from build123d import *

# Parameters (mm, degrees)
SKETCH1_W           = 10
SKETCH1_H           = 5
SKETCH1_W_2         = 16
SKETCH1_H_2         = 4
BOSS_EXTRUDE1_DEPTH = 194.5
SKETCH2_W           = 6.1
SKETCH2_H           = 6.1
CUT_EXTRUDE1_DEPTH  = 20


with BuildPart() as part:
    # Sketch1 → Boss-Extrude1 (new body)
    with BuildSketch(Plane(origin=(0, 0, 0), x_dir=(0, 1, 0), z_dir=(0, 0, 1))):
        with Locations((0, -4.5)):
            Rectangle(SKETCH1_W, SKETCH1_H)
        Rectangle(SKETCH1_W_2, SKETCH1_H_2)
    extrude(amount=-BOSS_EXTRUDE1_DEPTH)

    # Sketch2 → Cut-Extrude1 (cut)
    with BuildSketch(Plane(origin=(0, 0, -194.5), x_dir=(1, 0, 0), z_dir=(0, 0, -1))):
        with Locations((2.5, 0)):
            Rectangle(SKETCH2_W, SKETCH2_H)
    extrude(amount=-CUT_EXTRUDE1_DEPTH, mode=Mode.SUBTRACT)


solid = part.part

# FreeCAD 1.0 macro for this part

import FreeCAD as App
import Part
import Sketcher
from FreeCAD import Vector

doc = App.newDocument("Part")
params = doc.addObject("Spreadsheet::Sheet", "Params")
for row, (alias, value) in enumerate([
    ("sketch1_width", "5 mm"),
    ("sketch1_width2", "4 mm"),
    ("sketch1_height", "10 mm"),
    ("sketch1_height2", "3 mm"),
    ("pad1_length", "194.5 mm"),
    ("sketch2_width", "6.1 mm"),
    ("pocket1_length", "20 mm"),
], start=1):
    params.set(f"A{row}", alias)
    params.set(f"B{row}", "=" + value)
    params.setAlias(f"B{row}", alias)

body = doc.addObject("PartDesign::Body", "Body")

# Sketch on XY plane
sketch1 = body.newObject("Sketcher::SketchObject", "Sketch")
sketch1.AttachmentSupport = (doc.getObject("XY_Plane"), [""])
sketch1.MapMode = "FlatFace"
sketch1.addGeometry(Part.LineSegment(Vector(2, -5, 0), Vector(7, -5, 0)), False)
sketch1.addGeometry(Part.LineSegment(Vector(7, -5, 0), Vector(7, 5, 0)), False)
sketch1.addGeometry(Part.LineSegment(Vector(7, 5, 0), Vector(2, 5, 0)), False)
sketch1.addGeometry(Part.LineSegment(Vector(2, 5, 0), Vector(2, 8, 0)), False)
sketch1.addGeometry(Part.LineSegment(Vector(2, 8, 0), Vector(-2, 8, 0)), False)
sketch1.addGeometry(Part.LineSegment(Vector(-2, 8, 0), Vector(-2, -8, 0)), False)
sketch1.addGeometry(Part.LineSegment(Vector(-2, -8, 0), Vector(2, -8, 0)), False)
sketch1.addGeometry(Part.LineSegment(Vector(2, -8, 0), Vector(2, -5, 0)), False)
sketch1.addConstraint(Sketcher.Constraint("Coincident", 0, 2, 1, 1))
sketch1.addConstraint(Sketcher.Constraint("Coincident", 1, 2, 2, 1))
sketch1.addConstraint(Sketcher.Constraint("Coincident", 2, 2, 3, 1))
sketch1.addConstraint(Sketcher.Constraint("Coincident", 3, 2, 4, 1))
sketch1.addConstraint(Sketcher.Constraint("Coincident", 4, 2, 5, 1))
sketch1.addConstraint(Sketcher.Constraint("Coincident", 5, 2, 6, 1))
sketch1.addConstraint(Sketcher.Constraint("Coincident", 6, 2, 7, 1))
sketch1.addConstraint(Sketcher.Constraint("Coincident", 7, 2, 0, 1))
sketch1.addConstraint(Sketcher.Constraint("Horizontal", 0))
sketch1.addConstraint(Sketcher.Constraint("Vertical", 1))
sketch1.addConstraint(Sketcher.Constraint("Horizontal", 2))
sketch1.addConstraint(Sketcher.Constraint("Vertical", 3))
sketch1.addConstraint(Sketcher.Constraint("Horizontal", 4))
sketch1.addConstraint(Sketcher.Constraint("Vertical", 5))
sketch1.addConstraint(Sketcher.Constraint("Horizontal", 6))
sketch1.addConstraint(Sketcher.Constraint("Vertical", 7))
sketch1.addConstraint(Sketcher.Constraint("Symmetric", 3, 2, 5, 2, -1, 1))
sketch1.addConstraint(Sketcher.Constraint("Symmetric", 2, 2, 7, 2, -1))
sketch1.addConstraint(Sketcher.Constraint("DistanceX", 0, 1, 0, 2, 5.0))
sketch1.addConstraint(Sketcher.Constraint("DistanceX", 4, 2, 4, 1, 4.0))
sketch1.addConstraint(Sketcher.Constraint("DistanceY", 1, 1, 1, 2, 10.0))
sketch1.addConstraint(Sketcher.Constraint("DistanceY", 3, 1, 3, 2, 3.0))
sketch1.setExpression("Constraints[18]", "Params.sketch1_width")
sketch1.setExpression("Constraints[19]", "Params.sketch1_width2")
sketch1.setExpression("Constraints[20]", "Params.sketch1_height")
sketch1.setExpression("Constraints[21]", "Params.sketch1_height2")
pad1 = body.newObject("PartDesign::Pad", "Pad")
pad1.Profile = sketch1
pad1.setExpression("Length", "Params.pad1_length")
pad1.Reversed = True

# Sketch on XY plane
sketch2 = body.newObject("Sketcher::SketchObject", "Sketch001")
sketch2.AttachmentSupport = (doc.getObject("XY_Plane"), [""])
sketch2.MapMode = "FlatFace"
sketch2.AttachmentOffset = App.Placement(Vector(0, 0, -194.5), App.Rotation())
sketch2.addGeometry(Part.LineSegment(Vector(-1, -3, 0), Vector(-1, 3, 0)), False)
sketch2.addGeometry(Part.LineSegment(Vector(-1, 3, 0), Vector(6, 3, 0)), False)
sketch2.addGeometry(Part.LineSegment(Vector(6, 3, 0), Vector(6, -3, 0)), False)
sketch2.addGeometry(Part.LineSegment(Vector(6, -3, 0), Vector(-1, -3, 0)), False)
sketch2.addConstraint(Sketcher.Constraint("Coincident", 0, 2, 1, 1))
sketch2.addConstraint(Sketcher.Constraint("Coincident", 1, 2, 2, 1))
sketch2.addConstraint(Sketcher.Constraint("Coincident", 2, 2, 3, 1))
sketch2.addConstraint(Sketcher.Constraint("Coincident", 3, 2, 0, 1))
sketch2.addConstraint(Sketcher.Constraint("Vertical", 0))
sketch2.addConstraint(Sketcher.Constraint("Horizontal", 1))
sketch2.addConstraint(Sketcher.Constraint("Vertical", 2))
sketch2.addConstraint(Sketcher.Constraint("Horizontal", 3))
sketch2.addConstraint(Sketcher.Constraint("Equal", 3, 0))
sketch2.addConstraint(Sketcher.Constraint("DistanceX", 1, 1, 1, 2, 6.1))
sketch2.addConstraint(Sketcher.Constraint("DistanceX", 0, 2, -1, 1, 0.55))
sketch2.addConstraint(Sketcher.Constraint("DistanceY", -1, 1, 0, 2, 3.05))
sketch2.setExpression("Constraints[9]", "Params.sketch2_width")
pocket1 = body.newObject("PartDesign::Pocket", "Pocket")
pocket1.Profile = sketch2
pocket1.setExpression("Length", "Params.pocket1_length")
pocket1.Reversed = True

doc.recompute()
